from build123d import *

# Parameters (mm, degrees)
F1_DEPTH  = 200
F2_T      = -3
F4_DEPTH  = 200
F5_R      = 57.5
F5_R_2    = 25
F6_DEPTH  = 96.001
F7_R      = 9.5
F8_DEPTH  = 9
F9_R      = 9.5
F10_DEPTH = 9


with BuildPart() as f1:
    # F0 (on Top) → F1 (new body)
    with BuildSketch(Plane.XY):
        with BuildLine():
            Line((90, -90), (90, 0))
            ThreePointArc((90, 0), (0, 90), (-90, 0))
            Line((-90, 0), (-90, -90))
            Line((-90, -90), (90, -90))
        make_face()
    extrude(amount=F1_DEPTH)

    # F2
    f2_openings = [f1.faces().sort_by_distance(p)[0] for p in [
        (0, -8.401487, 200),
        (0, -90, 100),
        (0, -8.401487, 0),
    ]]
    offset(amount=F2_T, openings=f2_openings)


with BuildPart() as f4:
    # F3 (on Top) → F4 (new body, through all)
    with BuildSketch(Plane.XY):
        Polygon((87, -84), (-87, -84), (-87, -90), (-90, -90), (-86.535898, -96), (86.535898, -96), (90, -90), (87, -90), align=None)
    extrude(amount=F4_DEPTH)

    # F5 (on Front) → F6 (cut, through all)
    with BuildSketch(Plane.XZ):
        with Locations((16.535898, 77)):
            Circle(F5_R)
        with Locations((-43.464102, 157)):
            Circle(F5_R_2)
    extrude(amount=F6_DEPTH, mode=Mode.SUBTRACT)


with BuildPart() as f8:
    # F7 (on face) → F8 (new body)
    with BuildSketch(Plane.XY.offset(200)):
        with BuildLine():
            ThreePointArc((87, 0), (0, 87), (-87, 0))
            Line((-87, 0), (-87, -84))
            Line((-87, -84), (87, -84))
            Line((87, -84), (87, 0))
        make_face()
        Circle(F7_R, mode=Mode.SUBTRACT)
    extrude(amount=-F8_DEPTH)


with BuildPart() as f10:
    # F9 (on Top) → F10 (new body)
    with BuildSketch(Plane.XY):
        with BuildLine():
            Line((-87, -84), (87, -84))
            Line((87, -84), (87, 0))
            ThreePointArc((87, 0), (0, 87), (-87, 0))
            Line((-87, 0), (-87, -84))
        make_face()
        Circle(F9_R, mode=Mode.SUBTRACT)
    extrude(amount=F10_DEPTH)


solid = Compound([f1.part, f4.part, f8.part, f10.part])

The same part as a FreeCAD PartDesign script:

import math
import FreeCAD as App
import Part
import Sketcher

V = App.Vector
Q = App.Units.Quantity


def faces_at(feature, points):
    """Names of the faces that lie closest to the given points."""
    faces = feature.Shape.Faces
    near = lambda p: min(range(len(faces)), key=lambda i: faces[i].distToShape(Part.Vertex(*p))[0])
    return sorted({f"Face{near(p) + 1}" for p in points})


def add_polygon(sketch, points):
    """Adds a closed chain of lines whose ends are joined by coincident constraints."""
    first, n = sketch.GeometryCount, len(points)
    for a, b in zip(points, points[1:] + points[:1]):
        sketch.addGeometry(Part.LineSegment(App.Vector(*a, 0), App.Vector(*b, 0)), False)
    for i in range(n):
        sketch.addConstraint(Sketcher.Constraint("Coincident", first + i, 2, first + (i + 1) % n, 1))

doc = App.newDocument("Part")
params = doc.addObject("Spreadsheet::Sheet", "Params")
for row, (alias, value) in enumerate([
    ("sketch1_radius", "90 mm"),
    ("sketch1_height", "90 mm"),
    ("pad1_length", "200 mm"),
    ("thickness_wall", "3 mm"),
    ("sketch2_width", "174 mm"),
    ("sketch2_width2", "3 mm"),
    ("sketch2_height", "6 mm"),
    ("pad2_length", "200 mm"),
    ("sketch3_diameter", "115 mm"),
    ("sketch3_diameter2", "50 mm"),
    ("sketch4_diameter", "19 mm"),
    ("sketch4_radius", "87 mm"),
    ("sketch4_height", "84 mm"),
    ("pad3_length", "9 mm"),
    ("sketch5_diameter", "19 mm"),
    ("sketch5_radius", "87 mm"),
    ("sketch5_height", "84 mm"),
    ("pad4_length", "9 mm"),
], start=1):
    params.set(f"A{row}", alias)
    params.set(f"B{row}", "=" + value)
    params.setAlias(f"B{row}", alias)

body = doc.addObject("PartDesign::Body", "Body")

# Sketch on XY plane
sketch1 = doc.addObject("Sketcher::SketchObject", "Sketch")
body.addObject(sketch1)
sketch1.AttachmentSupport = (doc.XY_Plane, [""])
sketch1.MapMode = "FlatFace"
sketch1.addGeometry([
    Part.LineSegment(V(90, -90, 0), V(90, 0, 0)),
    Part.ArcOfCircle(Part.Circle(V(0, 0, 0), V(0, 0, 1), 90), math.radians(0), math.radians(180)),
    Part.LineSegment(V(-90, 0, 0), V(-90, -90, 0)),
    Part.LineSegment(V(-90, -90, 0), V(90, -90, 0)),
], False)
sketch1.addConstraint([
    Sketcher.Constraint("Tangent", 0, 2, 1, 1),
    Sketcher.Constraint("Tangent", 1, 2, 2, 1),
    Sketcher.Constraint("Coincident", 2, 2, 3, 1),
    Sketcher.Constraint("Coincident", 3, 2, 0, 1),
    Sketcher.Constraint("Vertical", 0),
    Sketcher.Constraint("Vertical", 2),
    Sketcher.Constraint("Horizontal", 3),
    Sketcher.Constraint("Coincident", 1, 3, -1, 1),
    Sketcher.Constraint("Radius", 1, Q("90 mm")),
    Sketcher.Constraint("DistanceY", 0, 1, 0, 2, Q("90 mm")),
])
sketch1.setExpression("Constraints[8]", "Params.sketch1_radius")
sketch1.setExpression("Constraints[9]", "Params.sketch1_height")
pad1 = doc.addObject("PartDesign::Pad", "Pad")
body.addObject(pad1)
pad1.Profile = sketch1
pad1.setExpression("Length", "Params.pad1_length")
doc.recompute()

thickness = doc.addObject("PartDesign::Thickness", "Thickness")
body.addObject(thickness)
thickness.Base = (pad1, faces_at(pad1, [(0, 0, 200), (0, -90, 100), (0, 0, 0)]))
thickness.setExpression("Value", "Params.thickness_wall")
thickness.Reversed = True
thickness.Join = "Arc"
body2 = doc.addObject("PartDesign::Body", "Body001")

# Sketch on XY plane
sketch2 = doc.addObject("Sketcher::SketchObject", "Sketch001")
body2.addObject(sketch2)
sketch2.AttachmentSupport = (doc.getObject("XY_Plane001"), [""])
sketch2.MapMode = "FlatFace"
add_polygon(sketch2, [(87, -84), (-87, -84), (-87, -90), (-90, -90), (-86.5, -96), (86.5, -96), (90, -90), (87, -90)])  # lines 0-7
sketch2.addConstraint([
    Sketcher.Constraint("Horizontal", 0),
    Sketcher.Constraint("Vertical", 1),
    Sketcher.Constraint("Horizontal", 2),
    Sketcher.Constraint("Horizontal", 4),
    Sketcher.Constraint("Horizontal", 6),
    Sketcher.Constraint("Vertical", 7),
    Sketcher.Constraint("Symmetric", 2, 2, 5, 2, -2),
    Sketcher.Constraint("Equal", 2, 6),
    Sketcher.Constraint("Equal", 3, 5),
    Sketcher.Constraint("DistanceX", 0, 2, 0, 1, Q("174 mm")),
    Sketcher.Constraint("DistanceX", 2, 2, 2, 1, Q("3 mm")),
    Sketcher.Constraint("DistanceY", 1, 2, 1, 1, Q("6 mm")),
    Sketcher.Constraint("Angle", 3, Q("-59.999997 deg")),
    Sketcher.Constraint("DistanceY", 0, 2, -1, 1, Q("84 mm")),
    Sketcher.Constraint("DistanceY", 3, 2, -1, 1, Q("96 mm")),
])
sketch2.setExpression("Constraints[17]", "Params.sketch2_width")
sketch2.setExpression("Constraints[18]", "Params.sketch2_width2")
sketch2.setExpression("Constraints[19]", "Params.sketch2_height")
pad2 = doc.addObject("PartDesign::Pad", "Pad001")
body2.addObject(pad2)
pad2.Profile = sketch2
pad2.setExpression("Length", "Params.pad2_length")

# Sketch on XZ plane
sketch3 = doc.addObject("Sketcher::SketchObject", "Sketch002")
body2.addObject(sketch3)
sketch3.AttachmentSupport = (doc.getObject("XZ_Plane001"), [""])
sketch3.MapMode = "FlatFace"
sketch3.addGeometry([
    Part.Circle(V(17, 77, 0), V(0, 0, 1), 58),
    Part.Circle(V(-43, 157, 0), V(0, 0, 1), 25),
], False)
sketch3.addConstraint([
    Sketcher.Constraint("Diameter", 0, Q("115 mm")),
    Sketcher.Constraint("Diameter", 1, Q("50 mm")),
    Sketcher.Constraint("DistanceY", -1, 1, 0, 3, Q("77 mm")),
    Sketcher.Constraint("DistanceY", -1, 1, 1, 3, Q("157 mm")),
    Sketcher.Constraint("DistanceX", 1, 3, 0, 3, Q("60 mm")),
    Sketcher.Constraint("DistanceX", 1, 3, -1, 1, Q("43.464102 mm")),
])
sketch3.setExpression("Constraints[0]", "Params.sketch3_diameter")
sketch3.setExpression("Constraints[1]", "Params.sketch3_diameter2")
pocket1 = doc.addObject("PartDesign::Pocket", "Pocket")
body2.addObject(pocket1)
pocket1.Profile = sketch3
pocket1.Type = "ThroughAll"
pocket1.Reversed = True
body3 = doc.addObject("PartDesign::Body", "Body002")

# Sketch on XY plane
sketch4 = doc.addObject("Sketcher::SketchObject", "Sketch003")
body3.addObject(sketch4)
sketch4.AttachmentSupport = (doc.getObject("XY_Plane002"), [""])
sketch4.MapMode = "FlatFace"
sketch4.AttachmentOffset = App.Placement(V(0, 0, 200), App.Rotation())
sketch4.addGeometry([
    Part.ArcOfCircle(Part.Circle(V(0, 0, 0), V(0, 0, 1), 87), math.radians(0), math.radians(180)),  # 0
    Part.LineSegment(V(-87, 0, 0), V(-87, -84, 0)),  # 1
    Part.LineSegment(V(-87, -84, 0), V(87, -84, 0)),  # 2
    Part.LineSegment(V(87, -84, 0), V(87, 0, 0)),  # 3
    Part.Circle(V(0, 0, 0), V(0, 0, 1), 10),  # 4
], False)
sketch4.addConstraint([
    Sketcher.Constraint("Tangent", 0, 2, 1, 1),
    Sketcher.Constraint("Coincident", 1, 2, 2, 1),
    Sketcher.Constraint("Coincident", 2, 2, 3, 1),
    Sketcher.Constraint("Tangent", 3, 2, 0, 1),
    Sketcher.Constraint("Vertical", 1),
    Sketcher.Constraint("Horizontal", 2),
    Sketcher.Constraint("Vertical", 3),
    Sketcher.Constraint("Coincident", 0, 3, -1, 1),
    Sketcher.Constraint("Coincident", 4, 3, -1, 1),
    Sketcher.Constraint("Diameter", 4, Q("19 mm")),
    Sketcher.Constraint("Radius", 0, Q("87 mm")),
    Sketcher.Constraint("DistanceY", 1, 2, 1, 1, Q("84 mm")),
])
sketch4.setExpression("Constraints[9]", "Params.sketch4_diameter")
sketch4.setExpression("Constraints[10]", "Params.sketch4_radius")
sketch4.setExpression("Constraints[11]", "Params.sketch4_height")
pad3 = doc.addObject("PartDesign::Pad", "Pad002")
body3.addObject(pad3)
pad3.Profile = sketch4
pad3.setExpression("Length", "Params.pad3_length")
pad3.Reversed = True
body4 = doc.addObject("PartDesign::Body", "Body003")

# Sketch on XY plane
sketch5 = doc.addObject("Sketcher::SketchObject", "Sketch004")
body4.addObject(sketch5)
sketch5.AttachmentSupport = (doc.getObject("XY_Plane003"), [""])
sketch5.MapMode = "FlatFace"
sketch5.addGeometry([
    Part.LineSegment(V(-87, -84, 0), V(87, -84, 0)),  # 0
    Part.LineSegment(V(87, -84, 0), V(87, 0, 0)),  # 1
    Part.ArcOfCircle(Part.Circle(V(0, 0, 0), V(0, 0, 1), 87), math.radians(0), math.radians(180)),  # 2
    Part.LineSegment(V(-87, 0, 0), V(-87, -84, 0)),  # 3
    Part.Circle(V(0, 0, 0), V(0, 0, 1), 10),  # 4
], False)
sketch5.addConstraint([
    Sketcher.Constraint("Coincident", 0, 2, 1, 1),
    Sketcher.Constraint("Tangent", 1, 2, 2, 1),
    Sketcher.Constraint("Tangent", 2, 2, 3, 1),
    Sketcher.Constraint("Coincident", 3, 2, 0, 1),
    Sketcher.Constraint("Horizontal", 0),
    Sketcher.Constraint("Vertical", 1),
    Sketcher.Constraint("Vertical", 3),
    Sketcher.Constraint("Coincident", 2, 3, -1, 1),
    Sketcher.Constraint("Coincident", 4, 3, -1, 1),
    Sketcher.Constraint("Diameter", 4, Q("19 mm")),
    Sketcher.Constraint("Radius", 2, Q("87 mm")),
    Sketcher.Constraint("DistanceY", 1, 1, 1, 2, Q("84 mm")),
])
sketch5.setExpression("Constraints[9]", "Params.sketch5_diameter")
sketch5.setExpression("Constraints[10]", "Params.sketch5_radius")
sketch5.setExpression("Constraints[11]", "Params.sketch5_height")
pad4 = doc.addObject("PartDesign::Pad", "Pad003")
body4.addObject(pad4)
pad4.Profile = sketch5
pad4.setExpression("Length", "Params.pad4_length")

doc.recompute()
